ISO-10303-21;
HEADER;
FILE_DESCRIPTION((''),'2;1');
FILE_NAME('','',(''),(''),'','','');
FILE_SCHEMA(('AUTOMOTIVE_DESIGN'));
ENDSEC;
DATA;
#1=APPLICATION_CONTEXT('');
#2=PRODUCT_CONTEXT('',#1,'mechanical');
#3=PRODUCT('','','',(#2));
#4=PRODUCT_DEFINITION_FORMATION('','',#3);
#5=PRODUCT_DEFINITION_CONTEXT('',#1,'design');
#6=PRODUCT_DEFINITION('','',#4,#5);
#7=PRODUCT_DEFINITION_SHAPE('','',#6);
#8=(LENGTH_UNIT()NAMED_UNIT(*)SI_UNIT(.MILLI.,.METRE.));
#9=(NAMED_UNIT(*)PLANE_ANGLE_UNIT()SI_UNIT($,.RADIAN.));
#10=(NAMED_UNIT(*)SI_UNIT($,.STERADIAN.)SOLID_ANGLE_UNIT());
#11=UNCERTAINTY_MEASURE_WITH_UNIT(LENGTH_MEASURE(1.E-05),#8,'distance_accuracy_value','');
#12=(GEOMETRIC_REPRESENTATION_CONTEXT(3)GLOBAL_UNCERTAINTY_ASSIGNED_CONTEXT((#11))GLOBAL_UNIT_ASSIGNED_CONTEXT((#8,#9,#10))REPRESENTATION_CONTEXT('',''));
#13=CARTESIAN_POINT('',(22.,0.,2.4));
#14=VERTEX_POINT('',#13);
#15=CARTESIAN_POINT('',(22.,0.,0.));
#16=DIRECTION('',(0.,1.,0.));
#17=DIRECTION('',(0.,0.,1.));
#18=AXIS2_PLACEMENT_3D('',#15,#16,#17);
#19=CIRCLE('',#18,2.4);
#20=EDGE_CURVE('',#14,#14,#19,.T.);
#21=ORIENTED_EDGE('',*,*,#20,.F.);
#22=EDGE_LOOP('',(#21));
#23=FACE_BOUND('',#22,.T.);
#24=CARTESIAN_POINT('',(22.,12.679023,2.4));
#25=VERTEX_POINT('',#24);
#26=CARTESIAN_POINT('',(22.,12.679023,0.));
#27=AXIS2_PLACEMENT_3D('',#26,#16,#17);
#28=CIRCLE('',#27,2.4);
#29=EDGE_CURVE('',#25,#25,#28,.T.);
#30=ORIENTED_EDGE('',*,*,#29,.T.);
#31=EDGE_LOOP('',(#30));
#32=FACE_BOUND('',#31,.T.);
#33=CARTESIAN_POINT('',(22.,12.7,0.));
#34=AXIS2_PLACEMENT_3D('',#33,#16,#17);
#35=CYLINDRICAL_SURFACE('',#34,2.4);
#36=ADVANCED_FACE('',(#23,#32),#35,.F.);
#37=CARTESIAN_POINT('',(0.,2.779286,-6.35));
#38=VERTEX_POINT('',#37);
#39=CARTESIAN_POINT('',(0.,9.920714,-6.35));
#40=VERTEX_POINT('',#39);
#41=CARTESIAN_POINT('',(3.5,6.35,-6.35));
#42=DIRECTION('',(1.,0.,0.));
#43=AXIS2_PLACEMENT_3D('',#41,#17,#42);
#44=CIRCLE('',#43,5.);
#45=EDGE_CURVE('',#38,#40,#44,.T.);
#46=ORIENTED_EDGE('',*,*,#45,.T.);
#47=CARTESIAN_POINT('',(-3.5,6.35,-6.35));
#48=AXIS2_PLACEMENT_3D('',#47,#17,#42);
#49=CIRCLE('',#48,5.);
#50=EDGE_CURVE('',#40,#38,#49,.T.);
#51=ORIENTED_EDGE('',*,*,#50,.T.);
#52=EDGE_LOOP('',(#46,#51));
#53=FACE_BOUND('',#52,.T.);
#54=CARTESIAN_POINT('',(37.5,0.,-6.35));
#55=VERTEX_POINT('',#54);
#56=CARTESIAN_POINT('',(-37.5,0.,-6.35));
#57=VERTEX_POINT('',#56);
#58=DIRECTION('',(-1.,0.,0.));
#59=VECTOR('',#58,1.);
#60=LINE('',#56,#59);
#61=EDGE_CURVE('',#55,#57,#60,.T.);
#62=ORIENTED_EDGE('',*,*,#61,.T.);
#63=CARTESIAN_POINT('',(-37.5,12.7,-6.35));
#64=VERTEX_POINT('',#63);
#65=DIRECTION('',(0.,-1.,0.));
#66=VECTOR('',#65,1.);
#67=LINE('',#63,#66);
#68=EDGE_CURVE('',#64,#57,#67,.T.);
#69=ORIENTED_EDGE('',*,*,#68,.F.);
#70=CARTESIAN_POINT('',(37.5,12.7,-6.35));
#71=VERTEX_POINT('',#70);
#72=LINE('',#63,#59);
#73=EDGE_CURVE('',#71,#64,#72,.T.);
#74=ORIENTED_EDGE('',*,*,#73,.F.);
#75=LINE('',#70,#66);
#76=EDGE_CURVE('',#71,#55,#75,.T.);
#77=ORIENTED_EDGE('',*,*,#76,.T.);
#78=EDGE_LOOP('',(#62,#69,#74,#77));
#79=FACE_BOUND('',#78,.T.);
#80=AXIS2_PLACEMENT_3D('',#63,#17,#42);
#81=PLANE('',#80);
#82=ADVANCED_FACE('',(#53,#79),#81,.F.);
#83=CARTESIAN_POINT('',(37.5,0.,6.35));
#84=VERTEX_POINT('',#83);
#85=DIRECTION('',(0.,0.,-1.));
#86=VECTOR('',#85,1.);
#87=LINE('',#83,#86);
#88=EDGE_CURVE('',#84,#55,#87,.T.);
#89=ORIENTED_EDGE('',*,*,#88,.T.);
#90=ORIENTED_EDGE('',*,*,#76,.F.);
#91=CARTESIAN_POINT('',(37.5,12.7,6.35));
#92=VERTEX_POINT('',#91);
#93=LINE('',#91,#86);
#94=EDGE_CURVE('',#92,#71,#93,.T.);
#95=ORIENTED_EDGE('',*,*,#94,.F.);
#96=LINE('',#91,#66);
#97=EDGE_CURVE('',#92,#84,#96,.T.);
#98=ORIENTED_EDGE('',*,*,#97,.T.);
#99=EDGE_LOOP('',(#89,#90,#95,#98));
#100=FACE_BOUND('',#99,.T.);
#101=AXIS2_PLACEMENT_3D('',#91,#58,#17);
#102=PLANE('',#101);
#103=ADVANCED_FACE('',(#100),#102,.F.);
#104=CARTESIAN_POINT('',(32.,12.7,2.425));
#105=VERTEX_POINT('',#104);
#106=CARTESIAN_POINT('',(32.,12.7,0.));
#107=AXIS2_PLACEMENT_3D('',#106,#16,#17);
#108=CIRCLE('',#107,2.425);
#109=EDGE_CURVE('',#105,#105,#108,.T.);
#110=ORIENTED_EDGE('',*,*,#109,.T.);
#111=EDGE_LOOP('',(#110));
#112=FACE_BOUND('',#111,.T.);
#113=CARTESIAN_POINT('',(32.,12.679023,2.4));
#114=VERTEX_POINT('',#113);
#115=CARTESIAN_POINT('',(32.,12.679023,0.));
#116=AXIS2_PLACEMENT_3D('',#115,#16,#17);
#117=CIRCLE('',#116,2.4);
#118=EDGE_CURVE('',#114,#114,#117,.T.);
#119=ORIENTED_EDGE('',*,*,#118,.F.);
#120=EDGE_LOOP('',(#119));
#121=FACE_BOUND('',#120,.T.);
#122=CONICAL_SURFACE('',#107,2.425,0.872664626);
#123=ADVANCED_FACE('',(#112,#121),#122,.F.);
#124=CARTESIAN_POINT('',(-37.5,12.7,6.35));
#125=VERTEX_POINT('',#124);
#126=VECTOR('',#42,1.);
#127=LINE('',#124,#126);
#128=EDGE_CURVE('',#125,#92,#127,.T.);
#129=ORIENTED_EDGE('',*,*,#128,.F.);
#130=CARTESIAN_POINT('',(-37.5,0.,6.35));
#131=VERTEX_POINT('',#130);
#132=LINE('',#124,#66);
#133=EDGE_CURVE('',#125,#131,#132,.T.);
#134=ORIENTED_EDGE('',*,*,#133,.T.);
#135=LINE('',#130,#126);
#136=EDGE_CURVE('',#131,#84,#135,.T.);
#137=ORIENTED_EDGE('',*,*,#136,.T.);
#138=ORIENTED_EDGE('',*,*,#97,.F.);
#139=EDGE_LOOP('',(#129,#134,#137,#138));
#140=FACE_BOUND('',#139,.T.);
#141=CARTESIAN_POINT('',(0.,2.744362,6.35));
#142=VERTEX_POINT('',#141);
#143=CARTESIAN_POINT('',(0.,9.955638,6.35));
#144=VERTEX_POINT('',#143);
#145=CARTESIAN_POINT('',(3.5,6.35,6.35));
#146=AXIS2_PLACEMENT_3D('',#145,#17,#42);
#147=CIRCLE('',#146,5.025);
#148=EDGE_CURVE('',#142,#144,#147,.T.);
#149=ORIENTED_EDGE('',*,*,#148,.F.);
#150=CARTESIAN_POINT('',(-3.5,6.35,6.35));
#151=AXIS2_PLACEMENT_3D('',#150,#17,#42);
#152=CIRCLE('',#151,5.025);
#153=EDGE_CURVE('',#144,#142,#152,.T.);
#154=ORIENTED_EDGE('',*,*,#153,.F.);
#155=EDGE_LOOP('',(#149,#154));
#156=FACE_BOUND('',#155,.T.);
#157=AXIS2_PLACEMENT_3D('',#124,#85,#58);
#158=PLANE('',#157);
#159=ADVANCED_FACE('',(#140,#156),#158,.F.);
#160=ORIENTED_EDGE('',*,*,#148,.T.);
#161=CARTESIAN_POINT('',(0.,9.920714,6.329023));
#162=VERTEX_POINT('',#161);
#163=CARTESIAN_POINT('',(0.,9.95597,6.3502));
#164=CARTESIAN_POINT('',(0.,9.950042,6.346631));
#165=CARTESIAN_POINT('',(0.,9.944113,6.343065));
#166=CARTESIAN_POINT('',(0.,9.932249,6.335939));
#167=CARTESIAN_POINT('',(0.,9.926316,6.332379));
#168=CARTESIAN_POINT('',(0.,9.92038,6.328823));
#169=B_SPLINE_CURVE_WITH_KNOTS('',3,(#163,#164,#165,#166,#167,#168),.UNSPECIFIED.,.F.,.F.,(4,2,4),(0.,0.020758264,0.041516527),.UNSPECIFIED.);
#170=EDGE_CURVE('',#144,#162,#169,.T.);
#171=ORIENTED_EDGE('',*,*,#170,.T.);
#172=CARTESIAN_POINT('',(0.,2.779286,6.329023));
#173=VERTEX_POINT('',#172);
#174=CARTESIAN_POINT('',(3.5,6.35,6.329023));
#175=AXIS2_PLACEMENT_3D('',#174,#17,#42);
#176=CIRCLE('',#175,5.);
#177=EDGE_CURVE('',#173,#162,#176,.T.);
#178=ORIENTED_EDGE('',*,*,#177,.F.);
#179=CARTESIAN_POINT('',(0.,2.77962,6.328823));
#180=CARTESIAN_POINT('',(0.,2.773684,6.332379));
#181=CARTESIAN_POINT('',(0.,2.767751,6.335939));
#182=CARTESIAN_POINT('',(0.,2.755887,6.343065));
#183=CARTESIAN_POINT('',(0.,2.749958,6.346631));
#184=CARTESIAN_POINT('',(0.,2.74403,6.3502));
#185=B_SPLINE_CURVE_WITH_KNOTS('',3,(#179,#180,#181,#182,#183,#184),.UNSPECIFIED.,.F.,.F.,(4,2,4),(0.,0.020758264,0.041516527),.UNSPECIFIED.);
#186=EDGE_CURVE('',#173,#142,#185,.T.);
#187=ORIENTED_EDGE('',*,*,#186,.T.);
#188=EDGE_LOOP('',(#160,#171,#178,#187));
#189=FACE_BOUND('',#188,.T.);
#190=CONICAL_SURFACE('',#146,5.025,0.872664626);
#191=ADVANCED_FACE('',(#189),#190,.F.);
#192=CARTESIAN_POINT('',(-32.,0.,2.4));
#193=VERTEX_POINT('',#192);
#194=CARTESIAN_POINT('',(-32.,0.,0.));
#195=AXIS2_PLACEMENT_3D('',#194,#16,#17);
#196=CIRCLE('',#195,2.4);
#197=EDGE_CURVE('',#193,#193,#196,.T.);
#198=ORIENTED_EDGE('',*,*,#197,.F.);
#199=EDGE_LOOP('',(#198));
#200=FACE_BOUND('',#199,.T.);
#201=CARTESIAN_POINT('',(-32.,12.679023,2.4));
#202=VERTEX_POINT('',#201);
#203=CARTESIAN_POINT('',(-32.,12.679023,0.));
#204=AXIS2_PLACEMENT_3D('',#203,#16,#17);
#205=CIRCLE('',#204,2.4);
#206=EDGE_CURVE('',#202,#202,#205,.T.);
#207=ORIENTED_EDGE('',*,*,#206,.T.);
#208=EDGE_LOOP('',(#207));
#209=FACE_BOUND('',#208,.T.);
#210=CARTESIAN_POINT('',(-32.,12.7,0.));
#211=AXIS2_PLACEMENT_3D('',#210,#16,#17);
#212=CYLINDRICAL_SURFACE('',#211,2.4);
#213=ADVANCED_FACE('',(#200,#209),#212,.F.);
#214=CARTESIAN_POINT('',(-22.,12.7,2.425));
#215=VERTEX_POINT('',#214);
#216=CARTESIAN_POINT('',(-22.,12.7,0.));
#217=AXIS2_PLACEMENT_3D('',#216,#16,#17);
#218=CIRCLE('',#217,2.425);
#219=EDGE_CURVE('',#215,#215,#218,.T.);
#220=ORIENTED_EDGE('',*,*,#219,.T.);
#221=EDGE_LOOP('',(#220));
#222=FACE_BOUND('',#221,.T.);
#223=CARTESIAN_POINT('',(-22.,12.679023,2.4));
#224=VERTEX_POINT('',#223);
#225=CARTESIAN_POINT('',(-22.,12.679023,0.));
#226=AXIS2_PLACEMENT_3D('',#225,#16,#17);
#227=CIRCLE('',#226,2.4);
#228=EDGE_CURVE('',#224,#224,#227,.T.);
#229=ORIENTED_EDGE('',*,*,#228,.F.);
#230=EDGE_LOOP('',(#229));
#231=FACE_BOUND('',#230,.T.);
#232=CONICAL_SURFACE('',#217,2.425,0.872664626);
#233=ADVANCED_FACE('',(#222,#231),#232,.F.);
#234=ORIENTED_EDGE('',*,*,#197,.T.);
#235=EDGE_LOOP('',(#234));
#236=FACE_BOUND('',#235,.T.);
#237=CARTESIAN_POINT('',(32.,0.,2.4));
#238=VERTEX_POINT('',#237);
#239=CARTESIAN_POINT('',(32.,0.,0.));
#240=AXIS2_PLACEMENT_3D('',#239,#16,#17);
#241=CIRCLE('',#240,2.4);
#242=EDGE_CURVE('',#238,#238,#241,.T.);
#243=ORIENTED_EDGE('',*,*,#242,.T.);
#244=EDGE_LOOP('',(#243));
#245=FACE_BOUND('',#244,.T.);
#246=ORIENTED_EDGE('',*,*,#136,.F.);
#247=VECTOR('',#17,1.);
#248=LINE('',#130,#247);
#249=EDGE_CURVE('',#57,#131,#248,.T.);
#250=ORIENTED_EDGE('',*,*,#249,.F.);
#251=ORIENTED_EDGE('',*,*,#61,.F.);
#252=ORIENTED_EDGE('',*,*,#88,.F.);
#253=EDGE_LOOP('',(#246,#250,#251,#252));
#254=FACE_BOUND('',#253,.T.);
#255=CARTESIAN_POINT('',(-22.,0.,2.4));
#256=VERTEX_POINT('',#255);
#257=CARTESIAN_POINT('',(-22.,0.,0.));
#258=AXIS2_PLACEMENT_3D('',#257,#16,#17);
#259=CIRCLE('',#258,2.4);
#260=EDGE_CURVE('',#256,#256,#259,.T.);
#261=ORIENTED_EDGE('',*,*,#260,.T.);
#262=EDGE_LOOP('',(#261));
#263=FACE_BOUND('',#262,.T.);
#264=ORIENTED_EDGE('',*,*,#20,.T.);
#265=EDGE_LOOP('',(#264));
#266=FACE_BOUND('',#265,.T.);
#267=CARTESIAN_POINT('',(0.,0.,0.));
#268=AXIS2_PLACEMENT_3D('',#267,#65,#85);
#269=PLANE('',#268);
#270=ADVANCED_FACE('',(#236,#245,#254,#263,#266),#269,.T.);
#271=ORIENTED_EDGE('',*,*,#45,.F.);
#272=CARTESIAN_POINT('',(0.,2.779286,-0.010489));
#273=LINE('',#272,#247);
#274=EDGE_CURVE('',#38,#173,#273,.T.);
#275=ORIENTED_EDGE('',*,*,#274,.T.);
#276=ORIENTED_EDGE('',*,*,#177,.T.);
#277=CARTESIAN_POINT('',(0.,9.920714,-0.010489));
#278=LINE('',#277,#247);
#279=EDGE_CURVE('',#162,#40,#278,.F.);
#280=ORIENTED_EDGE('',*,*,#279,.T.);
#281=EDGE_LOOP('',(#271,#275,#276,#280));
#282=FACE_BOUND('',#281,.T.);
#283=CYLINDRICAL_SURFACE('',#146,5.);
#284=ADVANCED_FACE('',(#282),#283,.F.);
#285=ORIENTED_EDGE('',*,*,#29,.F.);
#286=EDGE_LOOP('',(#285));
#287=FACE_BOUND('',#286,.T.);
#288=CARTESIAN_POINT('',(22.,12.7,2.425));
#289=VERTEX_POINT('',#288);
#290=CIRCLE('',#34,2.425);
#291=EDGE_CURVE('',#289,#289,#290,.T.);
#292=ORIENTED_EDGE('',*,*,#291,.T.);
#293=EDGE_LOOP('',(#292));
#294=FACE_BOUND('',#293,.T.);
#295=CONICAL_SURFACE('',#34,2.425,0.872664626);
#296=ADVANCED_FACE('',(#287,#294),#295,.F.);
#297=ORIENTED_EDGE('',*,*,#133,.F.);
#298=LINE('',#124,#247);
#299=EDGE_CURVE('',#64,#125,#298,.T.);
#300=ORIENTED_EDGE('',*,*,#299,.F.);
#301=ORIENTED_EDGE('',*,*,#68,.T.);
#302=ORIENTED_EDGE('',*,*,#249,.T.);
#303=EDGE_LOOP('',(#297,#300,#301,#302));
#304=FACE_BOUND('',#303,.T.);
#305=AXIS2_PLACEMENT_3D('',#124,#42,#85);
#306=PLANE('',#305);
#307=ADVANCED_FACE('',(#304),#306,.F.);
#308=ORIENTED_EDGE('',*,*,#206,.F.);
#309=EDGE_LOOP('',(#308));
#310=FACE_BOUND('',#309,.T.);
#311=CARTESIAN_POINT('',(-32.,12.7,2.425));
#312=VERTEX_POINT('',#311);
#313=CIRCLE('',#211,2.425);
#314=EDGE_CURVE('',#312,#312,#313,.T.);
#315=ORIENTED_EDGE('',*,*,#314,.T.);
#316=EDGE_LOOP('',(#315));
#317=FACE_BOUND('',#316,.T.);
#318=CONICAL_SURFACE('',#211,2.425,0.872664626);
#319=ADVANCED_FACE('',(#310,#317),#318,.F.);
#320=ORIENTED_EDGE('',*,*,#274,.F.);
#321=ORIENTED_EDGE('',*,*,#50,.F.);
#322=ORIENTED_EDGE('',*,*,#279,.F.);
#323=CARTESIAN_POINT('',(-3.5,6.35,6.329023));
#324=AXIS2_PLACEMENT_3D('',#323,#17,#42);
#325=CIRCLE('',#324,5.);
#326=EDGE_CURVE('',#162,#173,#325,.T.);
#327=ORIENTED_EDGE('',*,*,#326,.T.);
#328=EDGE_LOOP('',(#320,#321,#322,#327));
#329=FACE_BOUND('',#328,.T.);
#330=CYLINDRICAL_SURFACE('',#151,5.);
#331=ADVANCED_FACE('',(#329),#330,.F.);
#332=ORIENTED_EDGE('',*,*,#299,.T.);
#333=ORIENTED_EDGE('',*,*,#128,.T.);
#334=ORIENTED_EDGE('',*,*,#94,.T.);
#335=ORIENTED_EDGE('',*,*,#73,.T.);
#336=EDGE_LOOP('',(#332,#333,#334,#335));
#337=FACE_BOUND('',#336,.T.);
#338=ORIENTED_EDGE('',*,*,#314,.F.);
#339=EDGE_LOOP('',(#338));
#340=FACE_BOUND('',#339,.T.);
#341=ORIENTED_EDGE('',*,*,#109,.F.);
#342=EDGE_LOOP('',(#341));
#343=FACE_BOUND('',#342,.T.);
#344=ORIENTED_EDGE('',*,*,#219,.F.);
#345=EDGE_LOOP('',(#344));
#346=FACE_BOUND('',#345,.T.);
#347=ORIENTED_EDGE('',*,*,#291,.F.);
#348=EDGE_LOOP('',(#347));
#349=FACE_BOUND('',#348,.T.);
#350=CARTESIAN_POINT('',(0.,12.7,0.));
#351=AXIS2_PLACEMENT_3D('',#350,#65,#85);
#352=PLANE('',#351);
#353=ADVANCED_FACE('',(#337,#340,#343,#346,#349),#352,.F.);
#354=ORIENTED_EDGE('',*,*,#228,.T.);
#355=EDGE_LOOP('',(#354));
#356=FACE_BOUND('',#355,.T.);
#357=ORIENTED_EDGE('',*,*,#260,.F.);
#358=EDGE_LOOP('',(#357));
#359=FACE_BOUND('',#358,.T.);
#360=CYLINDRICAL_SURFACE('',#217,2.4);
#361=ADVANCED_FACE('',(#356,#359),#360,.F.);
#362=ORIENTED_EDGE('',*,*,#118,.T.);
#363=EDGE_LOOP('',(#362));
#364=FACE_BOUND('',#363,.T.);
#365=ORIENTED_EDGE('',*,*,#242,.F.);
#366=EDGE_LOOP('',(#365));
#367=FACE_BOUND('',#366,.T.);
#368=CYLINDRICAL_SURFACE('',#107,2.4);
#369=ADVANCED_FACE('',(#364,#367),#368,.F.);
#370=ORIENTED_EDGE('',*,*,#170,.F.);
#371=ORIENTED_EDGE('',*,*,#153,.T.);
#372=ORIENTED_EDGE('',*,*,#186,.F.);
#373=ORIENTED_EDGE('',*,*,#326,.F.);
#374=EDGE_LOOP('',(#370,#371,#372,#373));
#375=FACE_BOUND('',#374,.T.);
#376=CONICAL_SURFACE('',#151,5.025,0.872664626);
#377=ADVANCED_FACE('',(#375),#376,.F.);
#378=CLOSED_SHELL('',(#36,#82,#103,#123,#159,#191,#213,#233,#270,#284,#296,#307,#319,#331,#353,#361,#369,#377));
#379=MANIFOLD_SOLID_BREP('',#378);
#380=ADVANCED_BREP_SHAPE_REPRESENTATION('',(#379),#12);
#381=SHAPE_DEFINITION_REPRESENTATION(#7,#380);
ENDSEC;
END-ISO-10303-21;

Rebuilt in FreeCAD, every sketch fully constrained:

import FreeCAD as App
import Part
import Sketcher
from FreeCAD import Vector

doc = App.newDocument("Part")
body = doc.addObject("PartDesign::Body", "Body")

sketch1 = body.newObject("Sketcher::SketchObject", "Sketch")
sketch1.AttachmentSupport = (doc.getObject("XZ_Plane"), [""])
sketch1.MapMode = "FlatFace"
sketch1.addGeometry([
    Part.LineSegment(Vector(-38, -6, 0), Vector(-38, 6, 0)),
    Part.LineSegment(Vector(-38, 6, 0), Vector(38, 6, 0)),
    Part.LineSegment(Vector(38, 6, 0), Vector(38, -6, 0)),
    Part.LineSegment(Vector(38, -6, 0), Vector(-38, -6, 0)),
], False)
sketch1.addConstraint([
    Sketcher.Constraint("Coincident", 0, 2, 1, 1),
    Sketcher.Constraint("Coincident", 1, 2, 2, 1),
    Sketcher.Constraint("Coincident", 2, 2, 3, 1),
    Sketcher.Constraint("Coincident", 3, 2, 0, 1),
    Sketcher.Constraint("Vertical", 0),
    Sketcher.Constraint("Horizontal", 1),
    Sketcher.Constraint("Vertical", 2),
    Sketcher.Constraint("Horizontal", 3),
    Sketcher.Constraint("Symmetric", 0, 2, 2, 2, -1, 1),
    Sketcher.Constraint("DistanceX", 1, 1, 1, 2, 75.0),
    Sketcher.Constraint("DistanceY", 0, 1, 0, 2, 12.7),
])
pad1 = body.newObject("PartDesign::Pad", "Pad")
pad1.Profile = sketch1
pad1.Length = 12.7
pad1.Reversed = True

sketch2 = body.newObject("Sketcher::SketchObject", "Sketch001")
sketch2.AttachmentSupport = (doc.getObject("XZ_Plane"), [""])
sketch2.MapMode = "FlatFace"
sketch2.AttachmentOffset = App.Placement(Vector(0, 0, -12.7), App.Rotation())
sketch2.addGeometry([
    Part.Circle(Vector(-32, 0, 0), Vector(0, 0, 1), 2.4),
    Part.Circle(Vector(-22, 0, 0), Vector(0, 0, 1), 2.4),
    Part.Circle(Vector(22, 0, 0), Vector(0, 0, 1), 2.4),
    Part.Circle(Vector(32, 0, 0), Vector(0, 0, 1), 2.4),
], False)
sketch2.addConstraint([
    Sketcher.Constraint("Equal", 0, 1),
    Sketcher.Constraint("Equal", 1, 2),
    Sketcher.Constraint("Equal", 2, 3),
    Sketcher.Constraint("Symmetric", 1, 3, 2, 3, -1, 1),
    Sketcher.Constraint("Symmetric", 0, 3, 3, 3, -1, 1),
    Sketcher.Constraint("PointOnObject", 0, 3, -1),
    Sketcher.Constraint("PointOnObject", 1, 3, -1),
    Sketcher.Constraint("Diameter", 0, 4.8),
    Sketcher.Constraint("DistanceX", 0, 3, -1, 1, 32.0),
    Sketcher.Constraint("DistanceX", 1, 3, -1, 1, 22.0),
])
doc.recompute()
hole = body.newObject("PartDesign::Hole", "Hole")
hole.Profile = sketch2
hole.ThreadType = "None"
hole.Diameter = 4.8
hole.DepthType = "ThroughAll"
hole.HoleCutType = "Countersink"
hole.HoleCutDiameter = 4.85
hole.HoleCutCountersinkAngle = 100
hole.Reversed = True

sketch3 = body.newObject("Sketcher::SketchObject", "Sketch002")
sketch3.AttachmentSupport = (doc.getObject("XY_Plane"), [""])
sketch3.MapMode = "FlatFace"
sketch3.AttachmentOffset = App.Placement(Vector(0, 0, 6.35), App.Rotation())
sketch3.addGeometry([
    Part.Circle(Vector(-4, 6, 0), Vector(0, 0, 1), 5),
    Part.Circle(Vector(4, 6, 0), Vector(0, 0, 1), 5),
], False)
sketch3.addConstraint([
    Sketcher.Constraint("Equal", 0, 1),
    Sketcher.Constraint("Symmetric", 0, 3, 1, 3, -2),
    Sketcher.Constraint("Diameter", 0, 10.0),
    Sketcher.Constraint("DistanceX", 0, 3, 1, 3, 7.0),
    Sketcher.Constraint("DistanceY", -1, 1, 0, 3, 6.35),
])
doc.recompute()
hole2 = body.newObject("PartDesign::Hole", "Hole001")
hole2.Profile = sketch3
hole2.ThreadType = "None"
hole2.Diameter = 10
hole2.DepthType = "ThroughAll"
hole2.HoleCutType = "Countersink"
hole2.HoleCutDiameter = 10.05
hole2.HoleCutCountersinkAngle = 100

doc.recompute()
